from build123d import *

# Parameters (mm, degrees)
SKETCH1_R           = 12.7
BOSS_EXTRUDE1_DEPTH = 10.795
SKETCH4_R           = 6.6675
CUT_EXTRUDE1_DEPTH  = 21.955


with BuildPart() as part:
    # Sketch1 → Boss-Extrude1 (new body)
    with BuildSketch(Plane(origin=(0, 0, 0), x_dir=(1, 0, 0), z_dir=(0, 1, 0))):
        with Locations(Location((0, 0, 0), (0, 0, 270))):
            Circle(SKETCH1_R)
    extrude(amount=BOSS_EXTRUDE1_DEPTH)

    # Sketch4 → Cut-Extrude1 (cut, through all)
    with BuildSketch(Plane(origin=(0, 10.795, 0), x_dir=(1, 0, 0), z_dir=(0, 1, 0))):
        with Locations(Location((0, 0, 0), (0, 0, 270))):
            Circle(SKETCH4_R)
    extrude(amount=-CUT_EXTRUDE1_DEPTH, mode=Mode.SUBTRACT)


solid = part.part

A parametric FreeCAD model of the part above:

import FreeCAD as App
import Part
import Sketcher
from FreeCAD import Vector
Q = App.Units.Quantity

doc = App.newDocument("Part")
body = doc.addObject("PartDesign::Body", "Body")

sketch1 = doc.addObject("Sketcher::SketchObject", "Sketch")
body.addObject(sketch1)
sketch1.AttachmentSupport = (doc.XZ_Plane, [""])
sketch1.MapMode = "FlatFace"
sketch1.addGeometry(Part.Circle(Vector(0, 0, 0), Vector(0, 0, 1), 13), False)
sketch1.addConstraint(Sketcher.Constraint("Coincident", 0, 3, -1, 1))
sketch1.addConstraint(Sketcher.Constraint("Diameter", 0, Q("1 in")))
pad1 = doc.addObject("PartDesign::Pad", "Pad")
body.addObject(pad1)
pad1.Profile = sketch1
pad1.Length = Q("0.425 in")
pad1.Reversed = True

sketch2 = doc.addObject("Sketcher::SketchObject", "Sketch001")
body.addObject(sketch2)
sketch2.AttachmentSupport = (doc.XZ_Plane, [""])
sketch2.MapMode = "FlatFace"
sketch2.AttachmentOffset = App.Placement(Vector(0, 0, -0.425 * 25.4), App.Rotation())
sketch2.addGeometry(Part.Circle(Vector(0, 0, 0), Vector(0, 0, 1), 7), False)
sketch2.addConstraint(Sketcher.Constraint("Coincident", 0, 3, -1, 1))
sketch2.addConstraint(Sketcher.Constraint("Diameter", 0, Q("0.525 in")))
pocket1 = doc.addObject("PartDesign::Pocket", "Pocket")
body.addObject(pocket1)
pocket1.Profile = sketch2
pocket1.Type = "ThroughAll"
pocket1.Reversed = True

doc.recompute()
